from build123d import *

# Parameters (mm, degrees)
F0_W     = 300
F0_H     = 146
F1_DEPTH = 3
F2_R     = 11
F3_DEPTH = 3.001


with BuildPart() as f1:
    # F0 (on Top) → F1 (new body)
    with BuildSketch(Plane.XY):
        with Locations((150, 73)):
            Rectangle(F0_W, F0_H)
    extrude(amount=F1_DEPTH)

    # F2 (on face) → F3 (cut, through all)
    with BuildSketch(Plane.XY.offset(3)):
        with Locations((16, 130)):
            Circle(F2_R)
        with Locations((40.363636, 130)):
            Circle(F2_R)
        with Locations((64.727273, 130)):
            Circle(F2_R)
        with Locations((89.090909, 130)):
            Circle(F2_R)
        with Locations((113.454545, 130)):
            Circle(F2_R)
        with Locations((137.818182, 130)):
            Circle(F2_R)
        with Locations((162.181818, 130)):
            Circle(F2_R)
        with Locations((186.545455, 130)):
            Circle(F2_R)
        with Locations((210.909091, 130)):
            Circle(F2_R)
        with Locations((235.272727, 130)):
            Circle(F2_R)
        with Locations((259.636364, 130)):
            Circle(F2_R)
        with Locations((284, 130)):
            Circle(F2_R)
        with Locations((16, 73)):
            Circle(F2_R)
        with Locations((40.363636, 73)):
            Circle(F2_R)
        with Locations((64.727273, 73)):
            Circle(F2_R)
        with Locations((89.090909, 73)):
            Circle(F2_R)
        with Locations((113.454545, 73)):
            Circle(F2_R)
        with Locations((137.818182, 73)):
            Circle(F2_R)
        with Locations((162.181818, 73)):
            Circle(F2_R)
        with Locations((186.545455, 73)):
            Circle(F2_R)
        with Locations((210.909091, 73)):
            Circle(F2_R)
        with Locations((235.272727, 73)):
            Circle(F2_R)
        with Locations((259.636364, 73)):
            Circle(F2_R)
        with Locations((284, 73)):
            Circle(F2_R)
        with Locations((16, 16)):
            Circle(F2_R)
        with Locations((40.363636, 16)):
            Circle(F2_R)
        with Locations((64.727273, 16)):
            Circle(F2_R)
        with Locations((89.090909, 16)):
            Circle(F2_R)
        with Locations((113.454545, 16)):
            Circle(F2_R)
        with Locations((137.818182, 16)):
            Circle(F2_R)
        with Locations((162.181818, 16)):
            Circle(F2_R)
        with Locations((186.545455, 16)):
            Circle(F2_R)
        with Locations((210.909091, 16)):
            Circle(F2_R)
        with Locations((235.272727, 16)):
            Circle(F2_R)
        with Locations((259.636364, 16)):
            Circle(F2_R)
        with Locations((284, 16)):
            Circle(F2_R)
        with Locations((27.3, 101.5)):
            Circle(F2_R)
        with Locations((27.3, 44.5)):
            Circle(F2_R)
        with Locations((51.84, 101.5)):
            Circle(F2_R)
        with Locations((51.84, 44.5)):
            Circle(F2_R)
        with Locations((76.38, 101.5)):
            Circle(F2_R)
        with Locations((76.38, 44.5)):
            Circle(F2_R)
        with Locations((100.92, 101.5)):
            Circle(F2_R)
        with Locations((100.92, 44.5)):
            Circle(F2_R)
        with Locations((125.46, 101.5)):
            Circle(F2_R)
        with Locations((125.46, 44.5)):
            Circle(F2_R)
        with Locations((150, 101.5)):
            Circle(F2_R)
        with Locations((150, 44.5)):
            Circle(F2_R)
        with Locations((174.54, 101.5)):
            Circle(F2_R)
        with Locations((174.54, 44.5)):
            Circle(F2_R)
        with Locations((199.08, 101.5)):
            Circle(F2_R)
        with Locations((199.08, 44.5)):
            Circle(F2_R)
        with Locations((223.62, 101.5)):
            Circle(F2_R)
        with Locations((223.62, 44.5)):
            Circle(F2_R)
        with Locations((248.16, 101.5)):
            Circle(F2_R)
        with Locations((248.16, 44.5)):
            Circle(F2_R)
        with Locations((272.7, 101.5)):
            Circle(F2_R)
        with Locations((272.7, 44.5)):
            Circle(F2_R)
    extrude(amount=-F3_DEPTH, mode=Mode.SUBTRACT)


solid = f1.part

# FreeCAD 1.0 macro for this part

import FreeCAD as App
import Part
import Sketcher

V = App.Vector


def add_polygon(sketch, points):
    """Adds a closed chain of lines whose ends are joined by coincident constraints."""
    first, n = sketch.GeometryCount, len(points)
    for a, b in zip(points, points[1:] + points[:1]):
        sketch.addGeometry(Part.LineSegment(App.Vector(*a, 0), App.Vector(*b, 0)), False)
    for i in range(n):
        sketch.addConstraint(Sketcher.Constraint("Coincident", first + i, 2, first + (i + 1) % n, 1))

doc = App.newDocument("Part")
body = doc.addObject("PartDesign::Body", "Body")

sketch1 = body.newObject("Sketcher::SketchObject", "Sketch")
sketch1.AttachmentSupport = (doc.getObject("XY_Plane"), [""])
sketch1.MapMode = "FlatFace"
add_polygon(sketch1, [(0, 146), (0, 0), (300, 0), (300, 146)])
sketch1.addConstraint([
    Sketcher.Constraint("Vertical", 0),
    Sketcher.Constraint("Horizontal", 1),
    Sketcher.Constraint("Vertical", 2),
    Sketcher.Constraint("Horizontal", 3),
    Sketcher.Constraint("Coincident", 0, 2, -1, 1),
    Sketcher.Constraint("DistanceX", 1, 1, 1, 2, 300.0),
    Sketcher.Constraint("DistanceY", 0, 2, 0, 1, 146.0),
])
pad1 = body.newObject("PartDesign::Pad", "Pad")
pad1.Profile = sketch1
pad1.Length = 3

sketch2 = body.newObject("Sketcher::SketchObject", "Sketch001")
sketch2.AttachmentSupport = (doc.getObject("XY_Plane"), [""])
sketch2.MapMode = "FlatFace"
sketch2.AttachmentOffset = App.Placement(V(0, 0, 3), App.Rotation())
sketch2.addGeometry([
    Part.Circle(V(16, 130, 0), V(0, 0, 1), 11),
    Part.Circle(V(40, 130, 0), V(0, 0, 1), 11),
    Part.Circle(V(65, 130, 0), V(0, 0, 1), 11),
    Part.Circle(V(89, 130, 0), V(0, 0, 1), 11),
    Part.Circle(V(113, 130, 0), V(0, 0, 1), 11),
    Part.Circle(V(138, 130, 0), V(0, 0, 1), 11),
    Part.Circle(V(162, 130, 0), V(0, 0, 1), 11),
    Part.Circle(V(187, 130, 0), V(0, 0, 1), 11),
    Part.Circle(V(211, 130, 0), V(0, 0, 1), 11),
    Part.Circle(V(235, 130, 0), V(0, 0, 1), 11),
    Part.Circle(V(260, 130, 0), V(0, 0, 1), 11),
    Part.Circle(V(284, 130, 0), V(0, 0, 1), 11),
    Part.Circle(V(16, 73, 0), V(0, 0, 1), 11),
    Part.Circle(V(40, 73, 0), V(0, 0, 1), 11),
    Part.Circle(V(65, 73, 0), V(0, 0, 1), 11),
    Part.Circle(V(89, 73, 0), V(0, 0, 1), 11),
    Part.Circle(V(113, 73, 0), V(0, 0, 1), 11),
    Part.Circle(V(138, 73, 0), V(0, 0, 1), 11),
    Part.Circle(V(162, 73, 0), V(0, 0, 1), 11),
    Part.Circle(V(187, 73, 0), V(0, 0, 1), 11),
    Part.Circle(V(211, 73, 0), V(0, 0, 1), 11),
    Part.Circle(V(235, 73, 0), V(0, 0, 1), 11),
    Part.Circle(V(260, 73, 0), V(0, 0, 1), 11),
    Part.Circle(V(284, 73, 0), V(0, 0, 1), 11),
    Part.Circle(V(16, 16, 0), V(0, 0, 1), 11),
    Part.Circle(V(40, 16, 0), V(0, 0, 1), 11),
    Part.Circle(V(65, 16, 0), V(0, 0, 1), 11),
    Part.Circle(V(89, 16, 0), V(0, 0, 1), 11),
    Part.Circle(V(113, 16, 0), V(0, 0, 1), 11),
    Part.Circle(V(138, 16, 0), V(0, 0, 1), 11),
    Part.Circle(V(162, 16, 0), V(0, 0, 1), 11),
    Part.Circle(V(187, 16, 0), V(0, 0, 1), 11),
    Part.Circle(V(211, 16, 0), V(0, 0, 1), 11),
    Part.Circle(V(235, 16, 0), V(0, 0, 1), 11),
    Part.Circle(V(260, 16, 0), V(0, 0, 1), 11),
    Part.Circle(V(284, 16, 0), V(0, 0, 1), 11),
    Part.Circle(V(27, 102, 0), V(0, 0, 1), 11),
    Part.Circle(V(27, 44, 0), V(0, 0, 1), 11),
    Part.Circle(V(52, 102, 0), V(0, 0, 1), 11),
    Part.Circle(V(52, 44, 0), V(0, 0, 1), 11),
    Part.Circle(V(76, 102, 0), V(0, 0, 1), 11),
    Part.Circle(V(76, 44, 0), V(0, 0, 1), 11),
    Part.Circle(V(101, 102, 0), V(0, 0, 1), 11),
    Part.Circle(V(101, 44, 0), V(0, 0, 1), 11),
    Part.Circle(V(125, 102, 0), V(0, 0, 1), 11),
    Part.Circle(V(125, 44, 0), V(0, 0, 1), 11),
    Part.Circle(V(150, 102, 0), V(0, 0, 1), 11),
    Part.Circle(V(150, 44, 0), V(0, 0, 1), 11),
    Part.Circle(V(175, 102, 0), V(0, 0, 1), 11),
    Part.Circle(V(175, 44, 0), V(0, 0, 1), 11),
    Part.Circle(V(199, 102, 0), V(0, 0, 1), 11),
    Part.Circle(V(199, 44, 0), V(0, 0, 1), 11),
    Part.Circle(V(224, 102, 0), V(0, 0, 1), 11),
    Part.Circle(V(224, 44, 0), V(0, 0, 1), 11),
    Part.Circle(V(248, 102, 0), V(0, 0, 1), 11),
    Part.Circle(V(248, 44, 0), V(0, 0, 1), 11),
    Part.Circle(V(273, 102, 0), V(0, 0, 1), 11),
    Part.Circle(V(273, 44, 0), V(0, 0, 1), 11),
], False)
sketch2.addConstraint([
    Sketcher.Constraint("Equal", 0, 1),
    Sketcher.Constraint("Equal", 1, 2),
    Sketcher.Constraint("Equal", 2, 3),
    Sketcher.Constraint("Equal", 3, 4),
    Sketcher.Constraint("Equal", 4, 5),
    Sketcher.Constraint("Equal", 5, 6),
    Sketcher.Constraint("Equal", 6, 7),
    Sketcher.Constraint("Equal", 7, 8),
    Sketcher.Constraint("Equal", 8, 9),
    Sketcher.Constraint("Equal", 9, 10),
    Sketcher.Constraint("Equal", 10, 11),
    Sketcher.Constraint("Equal", 11, 12),
    Sketcher.Constraint("Equal", 12, 13),
    Sketcher.Constraint("Equal", 13, 14),
    Sketcher.Constraint("Equal", 14, 15),
    Sketcher.Constraint("Equal", 15, 16),
    Sketcher.Constraint("Equal", 16, 17),
    Sketcher.Constraint("Equal", 17, 18),
    Sketcher.Constraint("Equal", 18, 19),
    Sketcher.Constraint("Equal", 19, 20),
    Sketcher.Constraint("Equal", 20, 21),
    Sketcher.Constraint("Equal", 21, 22),
    Sketcher.Constraint("Equal", 22, 23),
    Sketcher.Constraint("Equal", 23, 24),
    Sketcher.Constraint("Equal", 24, 25),
    Sketcher.Constraint("Equal", 25, 26),
    Sketcher.Constraint("Equal", 26, 27),
    Sketcher.Constraint("Equal", 27, 28),
    Sketcher.Constraint("Equal", 28, 29),
    Sketcher.Constraint("Equal", 29, 30),
    Sketcher.Constraint("Equal", 30, 31),
    Sketcher.Constraint("Equal", 31, 32),
    Sketcher.Constraint("Equal", 32, 33),
    Sketcher.Constraint("Equal", 33, 34),
    Sketcher.Constraint("Equal", 34, 35),
    Sketcher.Constraint("Equal", 35, 36),
    Sketcher.Constraint("Equal", 36, 37),
    Sketcher.Constraint("Equal", 37, 38),
    Sketcher.Constraint("Equal", 38, 39),
    Sketcher.Constraint("Equal", 39, 40),
    Sketcher.Constraint("Equal", 40, 41),
    Sketcher.Constraint("Equal", 41, 42),
    Sketcher.Constraint("Equal", 42, 43),
    Sketcher.Constraint("Equal", 43, 44),
    Sketcher.Constraint("Equal", 44, 45),
    Sketcher.Constraint("Equal", 45, 46),
    Sketcher.Constraint("Equal", 46, 47),
    Sketcher.Constraint("Equal", 47, 48),
    Sketcher.Constraint("Equal", 48, 49),
    Sketcher.Constraint("Equal", 49, 50),
    Sketcher.Constraint("Equal", 50, 51),
    Sketcher.Constraint("Equal", 51, 52),
    Sketcher.Constraint("Equal", 52, 53),
    Sketcher.Constraint("Equal", 53, 54),
    Sketcher.Constraint("Equal", 54, 55),
    Sketcher.Constraint("Equal", 55, 56),
    Sketcher.Constraint("Equal", 56, 57),
    Sketcher.Constraint("Horizontal", 0, 3, 1, 3),
    Sketcher.Constraint("Horizontal", 1, 3, 2, 3),
    Sketcher.Constraint("Horizontal", 2, 3, 3, 3),
    Sketcher.Constraint("Horizontal", 3, 3, 4, 3),
    Sketcher.Constraint("Horizontal", 4, 3, 5, 3),
    Sketcher.Constraint("Horizontal", 5, 3, 6, 3),
    Sketcher.Constraint("Horizontal", 6, 3, 7, 3),
    Sketcher.Constraint("Horizontal", 7, 3, 8, 3),
    Sketcher.Constraint("Horizontal", 8, 3, 9, 3),
    Sketcher.Constraint("Horizontal", 9, 3, 10, 3),
    Sketcher.Constraint("Horizontal", 10, 3, 11, 3),
    Sketcher.Constraint("Horizontal", 12, 3, 13, 3),
    Sketcher.Constraint("Horizontal", 13, 3, 14, 3),
    Sketcher.Constraint("Horizontal", 14, 3, 15, 3),
    Sketcher.Constraint("Horizontal", 15, 3, 16, 3),
    Sketcher.Constraint("Horizontal", 16, 3, 17, 3),
    Sketcher.Constraint("Horizontal", 17, 3, 18, 3),
    Sketcher.Constraint("Horizontal", 18, 3, 19, 3),
    Sketcher.Constraint("Horizontal", 19, 3, 20, 3),
    Sketcher.Constraint("Horizontal", 20, 3, 21, 3),
    Sketcher.Constraint("Horizontal", 21, 3, 22, 3),
    Sketcher.Constraint("Horizontal", 22, 3, 23, 3),
    Sketcher.Constraint("Horizontal", 24, 3, 25, 3),
    Sketcher.Constraint("Horizontal", 25, 3, 26, 3),
    Sketcher.Constraint("Horizontal", 26, 3, 27, 3),
    Sketcher.Constraint("Horizontal", 27, 3, 28, 3),
    Sketcher.Constraint("Horizontal", 28, 3, 29, 3),
    Sketcher.Constraint("Horizontal", 29, 3, 30, 3),
    Sketcher.Constraint("Horizontal", 30, 3, 31, 3),
    Sketcher.Constraint("Horizontal", 31, 3, 32, 3),
    Sketcher.Constraint("Horizontal", 32, 3, 33, 3),
    Sketcher.Constraint("Horizontal", 33, 3, 34, 3),
    Sketcher.Constraint("Horizontal", 34, 3, 35, 3),
    Sketcher.Constraint("Horizontal", 36, 3, 38, 3),
    Sketcher.Constraint("Horizontal", 37, 3, 39, 3),
    Sketcher.Constraint("Horizontal", 38, 3, 40, 3),
    Sketcher.Constraint("Horizontal", 39, 3, 41, 3),
    Sketcher.Constraint("Horizontal", 40, 3, 42, 3),
    Sketcher.Constraint("Horizontal", 41, 3, 43, 3),
    Sketcher.Constraint("Horizontal", 42, 3, 44, 3),
    Sketcher.Constraint("Horizontal", 43, 3, 45, 3),
    Sketcher.Constraint("Horizontal", 44, 3, 46, 3),
    Sketcher.Constraint("Horizontal", 45, 3, 47, 3),
    Sketcher.Constraint("Horizontal", 46, 3, 48, 3),
    Sketcher.Constraint("Horizontal", 47, 3, 49, 3),
    Sketcher.Constraint("Horizontal", 48, 3, 50, 3),
    Sketcher.Constraint("Horizontal", 49, 3, 51, 3),
    Sketcher.Constraint("Horizontal", 50, 3, 52, 3),
    Sketcher.Constraint("Horizontal", 51, 3, 53, 3),
    Sketcher.Constraint("Horizontal", 52, 3, 54, 3),
    Sketcher.Constraint("Horizontal", 53, 3, 55, 3),
    Sketcher.Constraint("Horizontal", 54, 3, 56, 3),
    Sketcher.Constraint("Horizontal", 55, 3, 57, 3),
    Sketcher.Constraint("Vertical", 0, 3, 12, 3),
    Sketcher.Constraint("Vertical", 1, 3, 13, 3),
    Sketcher.Constraint("Vertical", 2, 3, 14, 3),
    Sketcher.Constraint("Vertical", 3, 3, 15, 3),
    Sketcher.Constraint("Vertical", 4, 3, 16, 3),
    Sketcher.Constraint("Vertical", 5, 3, 17, 3),
    Sketcher.Constraint("Vertical", 6, 3, 18, 3),
    Sketcher.Constraint("Vertical", 7, 3, 19, 3),
    Sketcher.Constraint("Vertical", 8, 3, 20, 3),
    Sketcher.Constraint("Vertical", 9, 3, 21, 3),
    Sketcher.Constraint("Vertical", 10, 3, 22, 3),
    Sketcher.Constraint("Vertical", 11, 3, 23, 3),
    Sketcher.Constraint("Vertical", 12, 3, 24, 3),
    Sketcher.Constraint("Vertical", 13, 3, 25, 3),
    Sketcher.Constraint("Vertical", 14, 3, 26, 3),
    Sketcher.Constraint("Vertical", 15, 3, 27, 3),
    Sketcher.Constraint("Vertical", 16, 3, 28, 3),
    Sketcher.Constraint("Vertical", 17, 3, 29, 3),
    Sketcher.Constraint("Vertical", 18, 3, 30, 3),
    Sketcher.Constraint("Vertical", 19, 3, 31, 3),
    Sketcher.Constraint("Vertical", 20, 3, 32, 3),
    Sketcher.Constraint("Vertical", 21, 3, 33, 3),
    Sketcher.Constraint("Vertical", 22, 3, 34, 3),
    Sketcher.Constraint("Vertical", 23, 3, 35, 3),
    Sketcher.Constraint("Vertical", 36, 3, 37, 3),
    Sketcher.Constraint("Vertical", 38, 3, 39, 3),
    Sketcher.Constraint("Vertical", 40, 3, 41, 3),
    Sketcher.Constraint("Vertical", 42, 3, 43, 3),
    Sketcher.Constraint("Vertical", 44, 3, 45, 3),
    Sketcher.Constraint("Vertical", 46, 3, 47, 3),
    Sketcher.Constraint("Vertical", 48, 3, 49, 3),
    Sketcher.Constraint("Vertical", 50, 3, 51, 3),
    Sketcher.Constraint("Vertical", 52, 3, 53, 3),
    Sketcher.Constraint("Vertical", 54, 3, 55, 3),
    Sketcher.Constraint("Vertical", 56, 3, 57, 3),
    Sketcher.Constraint("Diameter", 0, 22.0),
    Sketcher.Constraint("DistanceX", -1, 1, 0, 3, 16.0),
    Sketcher.Constraint("DistanceY", -1, 1, 0, 3, 130.0),
    Sketcher.Constraint("DistanceX", -1, 1, 11, 3, 284.0),
    Sketcher.Constraint("DistanceY", -1, 1, 12, 3, 73.0),
    Sketcher.Constraint("DistanceY", -1, 1, 24, 3, 16.0),
    Sketcher.Constraint("DistanceX", -1, 1, 46, 3, 150.0),
    Sketcher.Constraint("DistanceX", -1, 1, 36, 3, 27.3),
    Sketcher.Constraint("DistanceY", -1, 1, 36, 3, 101.5),
    Sketcher.Constraint("DistanceY", -1, 1, 37, 3, 44.5),
    Sketcher.Constraint("DistanceX", -1, 1, 56, 3, 272.7),
    Sketcher.Constraint("DistanceX", -1, 1, 38, 3, 51.84),
    Sketcher.Constraint("DistanceX", -1, 1, 40, 3, 76.38),
    Sketcher.Constraint("DistanceX", -1, 1, 42, 3, 100.92),
    Sketcher.Constraint("DistanceX", -1, 1, 44, 3, 125.46),
    Sketcher.Constraint("DistanceX", -1, 1, 48, 3, 174.54),
    Sketcher.Constraint("DistanceX", -1, 1, 50, 3, 199.08),
    Sketcher.Constraint("DistanceX", -1, 1, 52, 3, 223.62),
    Sketcher.Constraint("DistanceX", -1, 1, 54, 3, 248.16),
    Sketcher.Constraint("DistanceX", -1, 1, 3, 3, 89.090909),
    Sketcher.Constraint("DistanceX", -1, 1, 5, 3, 137.818182),
    Sketcher.Constraint("DistanceX", -1, 1, 6, 3, 162.181818),
    Sketcher.Constraint("DistanceX", -1, 1, 8, 3, 210.909091),
    Sketcher.Constraint("DistanceX", 1, 3, 4, 3, 73.090909),
    Sketcher.Constraint("DistanceX", 2, 3, 5, 3, 73.090909),
    Sketcher.Constraint("DistanceX", 1, 3, 6, 3, 121.818182),
    Sketcher.Constraint("DistanceX", 4, 3, 7, 3, 73.09091),
    Sketcher.Constraint("DistanceX", 6, 3, 9, 3, 73.090909),
    Sketcher.Constraint("DistanceX", 7, 3, 10, 3, 73.090909),
])
pocket1 = body.newObject("PartDesign::Pocket", "Pocket")
pocket1.Profile = sketch2
pocket1.Type = "ThroughAll"

doc.recompute()
